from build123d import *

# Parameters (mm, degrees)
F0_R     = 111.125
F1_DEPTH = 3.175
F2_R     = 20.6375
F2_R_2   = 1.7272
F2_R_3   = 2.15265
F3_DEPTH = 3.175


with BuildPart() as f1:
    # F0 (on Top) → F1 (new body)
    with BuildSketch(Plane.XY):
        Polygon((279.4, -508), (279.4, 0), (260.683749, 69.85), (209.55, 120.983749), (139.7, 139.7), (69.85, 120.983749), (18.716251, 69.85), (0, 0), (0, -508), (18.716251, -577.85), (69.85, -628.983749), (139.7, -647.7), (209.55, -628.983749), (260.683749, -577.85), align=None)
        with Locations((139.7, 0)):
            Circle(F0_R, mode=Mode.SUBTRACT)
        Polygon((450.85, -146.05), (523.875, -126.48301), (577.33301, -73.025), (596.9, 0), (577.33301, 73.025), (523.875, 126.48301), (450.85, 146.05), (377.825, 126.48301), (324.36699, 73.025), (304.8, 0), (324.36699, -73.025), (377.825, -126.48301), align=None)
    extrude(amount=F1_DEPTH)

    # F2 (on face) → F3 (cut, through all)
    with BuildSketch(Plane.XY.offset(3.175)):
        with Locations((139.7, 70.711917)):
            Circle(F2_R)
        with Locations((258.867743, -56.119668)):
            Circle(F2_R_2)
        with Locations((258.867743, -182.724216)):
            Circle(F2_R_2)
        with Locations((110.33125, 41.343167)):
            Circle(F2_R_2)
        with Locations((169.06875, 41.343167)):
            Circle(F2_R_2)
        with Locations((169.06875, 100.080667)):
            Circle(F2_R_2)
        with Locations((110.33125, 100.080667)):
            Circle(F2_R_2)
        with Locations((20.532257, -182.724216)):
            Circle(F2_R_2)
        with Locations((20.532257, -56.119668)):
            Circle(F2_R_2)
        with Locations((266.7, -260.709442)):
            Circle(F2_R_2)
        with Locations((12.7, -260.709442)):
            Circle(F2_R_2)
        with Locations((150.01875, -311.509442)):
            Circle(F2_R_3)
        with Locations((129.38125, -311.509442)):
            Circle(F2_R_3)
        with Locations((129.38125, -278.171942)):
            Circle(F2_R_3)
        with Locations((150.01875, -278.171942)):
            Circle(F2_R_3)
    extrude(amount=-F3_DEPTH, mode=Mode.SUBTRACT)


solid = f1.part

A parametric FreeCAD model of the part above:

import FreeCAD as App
import Part
import Sketcher
Q = App.Units.Quantity

doc = App.newDocument("Part")
body = doc.addObject("PartDesign::Body", "Body")
body.AllowCompound = True

sketch1 = body.newObject("Sketcher::SketchObject", "Sketch")
sketch1.AttachmentSupport = (doc.getObject("XY_Plane"), [""])
sketch1.MapMode = "FlatFace"
sketch1.addGeometry([
    Part.LineSegment(App.Vector(279, -508, 0), App.Vector(279, 0, 0)),
    Part.LineSegment(App.Vector(279, 0, 0), App.Vector(261, 70, 0)),
    Part.LineSegment(App.Vector(261, 70, 0), App.Vector(210, 121, 0)),
    Part.LineSegment(App.Vector(210, 121, 0), App.Vector(140, 140, 0)),
    Part.LineSegment(App.Vector(140, 140, 0), App.Vector(70, 121, 0)),
    Part.LineSegment(App.Vector(70, 121, 0), App.Vector(19, 70, 0)),
    Part.LineSegment(App.Vector(19, 70, 0), App.Vector(0, 0, 0)),
    Part.LineSegment(App.Vector(0, 0, 0), App.Vector(0, -508, 0)),
    Part.LineSegment(App.Vector(0, -508, 0), App.Vector(19, -578, 0)),
    Part.LineSegment(App.Vector(19, -578, 0), App.Vector(70, -629, 0)),
    Part.LineSegment(App.Vector(70, -629, 0), App.Vector(140, -648, 0)),
    Part.LineSegment(App.Vector(140, -648, 0), App.Vector(210, -629, 0)),
    Part.LineSegment(App.Vector(210, -629, 0), App.Vector(261, -578, 0)),
    Part.LineSegment(App.Vector(261, -578, 0), App.Vector(279, -508, 0)),
    Part.Circle(App.Vector(140, 0, 0), App.Vector(0, 0, 1), 111),
    Part.LineSegment(App.Vector(451, -146, 0), App.Vector(524, -126, 0)),
    Part.LineSegment(App.Vector(524, -126, 0), App.Vector(577, -73, 0)),
    Part.LineSegment(App.Vector(577, -73, 0), App.Vector(597, 0, 0)),
    Part.LineSegment(App.Vector(597, 0, 0), App.Vector(577, 73, 0)),
    Part.LineSegment(App.Vector(577, 73, 0), App.Vector(524, 126, 0)),
    Part.LineSegment(App.Vector(524, 126, 0), App.Vector(451, 146, 0)),
    Part.LineSegment(App.Vector(451, 146, 0), App.Vector(378, 126, 0)),
    Part.LineSegment(App.Vector(378, 126, 0), App.Vector(324, 73, 0)),
    Part.LineSegment(App.Vector(324, 73, 0), App.Vector(305, 0, 0)),
    Part.LineSegment(App.Vector(305, 0, 0), App.Vector(324, -73, 0)),
    Part.LineSegment(App.Vector(324, -73, 0), App.Vector(378, -126, 0)),
    Part.LineSegment(App.Vector(378, -126, 0), App.Vector(451, -146, 0)),
], False)
sketch1.addConstraint([
    Sketcher.Constraint("Coincident", 0, 2, 1, 1),
    Sketcher.Constraint("Coincident", 1, 2, 2, 1),
    Sketcher.Constraint("Coincident", 2, 2, 3, 1),
    Sketcher.Constraint("Coincident", 3, 2, 4, 1),
    Sketcher.Constraint("Coincident", 4, 2, 5, 1),
    Sketcher.Constraint("Coincident", 5, 2, 6, 1),
    Sketcher.Constraint("Coincident", 6, 2, 7, 1),
    Sketcher.Constraint("Coincident", 7, 2, 8, 1),
    Sketcher.Constraint("Coincident", 8, 2, 9, 1),
    Sketcher.Constraint("Coincident", 9, 2, 10, 1),
    Sketcher.Constraint("Coincident", 10, 2, 11, 1),
    Sketcher.Constraint("Coincident", 11, 2, 12, 1),
    Sketcher.Constraint("Coincident", 12, 2, 13, 1),
    Sketcher.Constraint("Coincident", 13, 2, 0, 1),
    Sketcher.Constraint("Coincident", 15, 2, 16, 1),
    Sketcher.Constraint("Coincident", 16, 2, 17, 1),
    Sketcher.Constraint("Coincident", 17, 2, 18, 1),
    Sketcher.Constraint("Coincident", 18, 2, 19, 1),
    Sketcher.Constraint("Coincident", 19, 2, 20, 1),
    Sketcher.Constraint("Coincident", 20, 2, 21, 1),
    Sketcher.Constraint("Coincident", 21, 2, 22, 1),
    Sketcher.Constraint("Coincident", 22, 2, 23, 1),
    Sketcher.Constraint("Coincident", 23, 2, 24, 1),
    Sketcher.Constraint("Coincident", 24, 2, 25, 1),
    Sketcher.Constraint("Coincident", 25, 2, 26, 1),
    Sketcher.Constraint("Coincident", 26, 2, 15, 1),
    Sketcher.Constraint("Vertical", 0),
    Sketcher.Constraint("Vertical", 7),
    Sketcher.Constraint("Coincident", 6, 2, -1, 1),
    Sketcher.Constraint("Symmetric", 16, 2, 18, 2, -1),
    Sketcher.Constraint("Symmetric", 15, 2, 19, 2, -1),
    Sketcher.Constraint("Symmetric", 22, 2, 24, 2, -1),
    Sketcher.Constraint("Symmetric", 21, 2, 25, 2, -1),
    Sketcher.Constraint("Symmetric", 20, 2, 26, 2, -1),
    Sketcher.Constraint("PointOnObject", 14, 3, -1),
    Sketcher.Constraint("PointOnObject", 0, 2, -1),
    Sketcher.Constraint("PointOnObject", 17, 2, -1),
    Sketcher.Constraint("PointOnObject", 23, 2, -1),
    Sketcher.Constraint("Perpendicular", 1, 4),
    Sketcher.Constraint("Perpendicular", 2, 5),
    Sketcher.Constraint("Perpendicular", 3, 6),
    Sketcher.Constraint("Perpendicular", 4, 8),
    Sketcher.Constraint("Perpendicular", 5, 9),
    Sketcher.Constraint("Perpendicular", 6, 10),
    Sketcher.Constraint("Perpendicular", 8, 11),
    Sketcher.Constraint("Perpendicular", 9, 12),
    Sketcher.Constraint("Perpendicular", 10, 13),
    Sketcher.Constraint("Parallel", 11, 15),
    Sketcher.Constraint("Parallel", 12, 16),
    Sketcher.Constraint("Parallel", 13, 17),
    Sketcher.Constraint("Perpendicular", 15, 18),
    Sketcher.Constraint("Perpendicular", 16, 19),
    Sketcher.Constraint("Perpendicular", 18, 21),
    Sketcher.Constraint("Perpendicular", 19, 22),
    Sketcher.Constraint("Perpendicular", 20, 23),
    Sketcher.Constraint("Horizontal", 2, 2, 4, 2),
    Sketcher.Constraint("Horizontal", 1, 2, 5, 2),
    Sketcher.Constraint("Horizontal", 9, 2, 11, 2),
    Sketcher.Constraint("Horizontal", 8, 2, 12, 2),
    Sketcher.Constraint("Horizontal", 7, 2, 13, 2),
    Sketcher.Constraint("Horizontal", 19, 2, 21, 2),
    Sketcher.Constraint("Horizontal", 18, 2, 22, 2),
    Sketcher.Constraint("Vertical", 14, 3, 3, 2),
    Sketcher.Constraint("Vertical", 5, 2, 8, 2),
    Sketcher.Constraint("Vertical", 4, 2, 9, 2),
    Sketcher.Constraint("Equal", 1, 2),
    Sketcher.Constraint("Equal", 2, 3),
    Sketcher.Constraint("Equal", 15, 16),
    Sketcher.Constraint("Equal", 16, 17),
    Sketcher.Constraint("Diameter", 14, Q("8.75 in")),
    Sketcher.Constraint("DistanceY", 0, 1, 0, 2, Q("20 in")),
    Sketcher.Constraint("DistanceX", -1, 1, 0, 2, Q("11 in")),
    Sketcher.Constraint("DistanceX", -1, 1, 23, 2, Q("12 in")),
    Sketcher.Constraint("Angle", 1, Q("105 deg")),
    Sketcher.Constraint("DistanceY", 1, 2, 20, 2, Q("3 in")),
])
pad1 = body.newObject("PartDesign::Pad", "Pad")
pad1.Profile = sketch1
pad1.Length = Q("0.125 in")

sketch2 = body.newObject("Sketcher::SketchObject", "Sketch001")
sketch2.AttachmentSupport = (doc.getObject("XY_Plane"), [""])
sketch2.MapMode = "FlatFace"
sketch2.AttachmentOffset = App.Placement(App.Vector(0, 0, 0.125 * 25.4), App.Rotation())
sketch2.addGeometry([
    Part.Circle(App.Vector(139.7, 70.7, 0), App.Vector(0, 0, 1), 20.6),
    Part.Circle(App.Vector(258.9, -56.1, 0), App.Vector(0, 0, 1), 1.7),
    Part.Circle(App.Vector(258.9, -182.7, 0), App.Vector(0, 0, 1), 1.7),
    Part.Circle(App.Vector(110.3, 41.3, 0), App.Vector(0, 0, 1), 1.7),
    Part.Circle(App.Vector(169.1, 41.3, 0), App.Vector(0, 0, 1), 1.7),
    Part.Circle(App.Vector(169.1, 100.1, 0), App.Vector(0, 0, 1), 1.7),
    Part.Circle(App.Vector(110.3, 100.1, 0), App.Vector(0, 0, 1), 1.7),
    Part.Circle(App.Vector(20.5, -182.7, 0), App.Vector(0, 0, 1), 1.7),
    Part.Circle(App.Vector(20.5, -56.1, 0), App.Vector(0, 0, 1), 1.7),
    Part.Circle(App.Vector(266.7, -260.7, 0), App.Vector(0, 0, 1), 1.7),
    Part.Circle(App.Vector(12.7, -260.7, 0), App.Vector(0, 0, 1), 1.7),
    Part.Circle(App.Vector(150, -311.5, 0), App.Vector(0, 0, 1), 2.2),
    Part.Circle(App.Vector(129.4, -311.5, 0), App.Vector(0, 0, 1), 2.2),
    Part.Circle(App.Vector(129.4, -278.2, 0), App.Vector(0, 0, 1), 2.2),
    Part.Circle(App.Vector(150, -278.2, 0), App.Vector(0, 0, 1), 2.2),
], False)
sketch2.addConstraint([
    Sketcher.Constraint("Equal", 1, 2),
    Sketcher.Constraint("Equal", 2, 3),
    Sketcher.Constraint("Equal", 3, 4),
    Sketcher.Constraint("Equal", 4, 5),
    Sketcher.Constraint("Equal", 5, 6),
    Sketcher.Constraint("Equal", 6, 7),
    Sketcher.Constraint("Equal", 7, 8),
    Sketcher.Constraint("Equal", 8, 9),
    Sketcher.Constraint("Equal", 9, 10),
    Sketcher.Constraint("Equal", 11, 12),
    Sketcher.Constraint("Equal", 12, 13),
    Sketcher.Constraint("Equal", 13, 14),
    Sketcher.Constraint("Horizontal", 3, 3, 4, 3),
    Sketcher.Constraint("Horizontal", 5, 3, 6, 3),
    Sketcher.Constraint("Horizontal", 2, 3, 7, 3),
    Sketcher.Constraint("Horizontal", 1, 3, 8, 3),
    Sketcher.Constraint("Horizontal", 9, 3, 10, 3),
    Sketcher.Constraint("Horizontal", 11, 3, 12, 3),
    Sketcher.Constraint("Horizontal", 13, 3, 14, 3),
    Sketcher.Constraint("Vertical", 1, 3, 2, 3),
    Sketcher.Constraint("Vertical", 4, 3, 5, 3),
    Sketcher.Constraint("Vertical", 3, 3, 6, 3),
    Sketcher.Constraint("Vertical", 7, 3, 8, 3),
    Sketcher.Constraint("Vertical", 12, 3, 13, 3),
    Sketcher.Constraint("Vertical", 11, 3, 14, 3),
    Sketcher.Constraint("Diameter", 0, Q("1.625 in")),
    Sketcher.Constraint("Diameter", 1, Q("0.136 in")),
    Sketcher.Constraint("DistanceX", 10, 3, 9, 3, Q("10 in")),
    Sketcher.Constraint("DistanceY", 11, 3, 9, 3, Q("2 in")),
    Sketcher.Constraint("Diameter", 11, Q("0.1695 in")),
    Sketcher.Constraint("DistanceX", -1, 1, 0, 3, Q("5.5 in")),
    Sketcher.Constraint("DistanceX", -1, 1, 9, 3, Q("10.5 in")),
    Sketcher.Constraint("DistanceX", -1, 1, 3, 3, Q("4.34375 in")),
    Sketcher.Constraint("DistanceX", -1, 1, 4, 3, Q("6.65625 in")),
    Sketcher.Constraint("DistanceX", -1, 1, 11, 3, Q("5.90625 in")),
    Sketcher.Constraint("DistanceX", -1, 1, 12, 3, Q("5.09375 in")),
    Sketcher.Constraint("DistanceY", 3, 3, 0, 3, Q("1.15625 in")),
    Sketcher.Constraint("DistanceY", 0, 3, 5, 3, Q("1.15625 in")),
    Sketcher.Constraint("DistanceY", 12, 3, 13, 3, Q("1.3125 in")),
    Sketcher.Constraint("DistanceY", 11, 3, -1, 1, Q("311.509442 mm")),
    Sketcher.Constraint("DistanceY", 2, 3, 1, 3, Q("126.604548 mm")),
    Sketcher.Constraint("DistanceY", 9, 3, 4, 3, Q("302.052609 mm")),
    Sketcher.Constraint("DistanceX", -1, 1, 1, 3, Q("258.867743 mm")),
    Sketcher.Constraint("DistanceY", 1, 3, -1, 1, Q("56.119668 mm")),
    Sketcher.Constraint("DistanceX", -1, 1, 7, 3, Q("20.532257 mm")),
])
pocket1 = body.newObject("PartDesign::Pocket", "Pocket")
pocket1.Profile = sketch2
pocket1.Type = "ThroughAll"

doc.recompute()
